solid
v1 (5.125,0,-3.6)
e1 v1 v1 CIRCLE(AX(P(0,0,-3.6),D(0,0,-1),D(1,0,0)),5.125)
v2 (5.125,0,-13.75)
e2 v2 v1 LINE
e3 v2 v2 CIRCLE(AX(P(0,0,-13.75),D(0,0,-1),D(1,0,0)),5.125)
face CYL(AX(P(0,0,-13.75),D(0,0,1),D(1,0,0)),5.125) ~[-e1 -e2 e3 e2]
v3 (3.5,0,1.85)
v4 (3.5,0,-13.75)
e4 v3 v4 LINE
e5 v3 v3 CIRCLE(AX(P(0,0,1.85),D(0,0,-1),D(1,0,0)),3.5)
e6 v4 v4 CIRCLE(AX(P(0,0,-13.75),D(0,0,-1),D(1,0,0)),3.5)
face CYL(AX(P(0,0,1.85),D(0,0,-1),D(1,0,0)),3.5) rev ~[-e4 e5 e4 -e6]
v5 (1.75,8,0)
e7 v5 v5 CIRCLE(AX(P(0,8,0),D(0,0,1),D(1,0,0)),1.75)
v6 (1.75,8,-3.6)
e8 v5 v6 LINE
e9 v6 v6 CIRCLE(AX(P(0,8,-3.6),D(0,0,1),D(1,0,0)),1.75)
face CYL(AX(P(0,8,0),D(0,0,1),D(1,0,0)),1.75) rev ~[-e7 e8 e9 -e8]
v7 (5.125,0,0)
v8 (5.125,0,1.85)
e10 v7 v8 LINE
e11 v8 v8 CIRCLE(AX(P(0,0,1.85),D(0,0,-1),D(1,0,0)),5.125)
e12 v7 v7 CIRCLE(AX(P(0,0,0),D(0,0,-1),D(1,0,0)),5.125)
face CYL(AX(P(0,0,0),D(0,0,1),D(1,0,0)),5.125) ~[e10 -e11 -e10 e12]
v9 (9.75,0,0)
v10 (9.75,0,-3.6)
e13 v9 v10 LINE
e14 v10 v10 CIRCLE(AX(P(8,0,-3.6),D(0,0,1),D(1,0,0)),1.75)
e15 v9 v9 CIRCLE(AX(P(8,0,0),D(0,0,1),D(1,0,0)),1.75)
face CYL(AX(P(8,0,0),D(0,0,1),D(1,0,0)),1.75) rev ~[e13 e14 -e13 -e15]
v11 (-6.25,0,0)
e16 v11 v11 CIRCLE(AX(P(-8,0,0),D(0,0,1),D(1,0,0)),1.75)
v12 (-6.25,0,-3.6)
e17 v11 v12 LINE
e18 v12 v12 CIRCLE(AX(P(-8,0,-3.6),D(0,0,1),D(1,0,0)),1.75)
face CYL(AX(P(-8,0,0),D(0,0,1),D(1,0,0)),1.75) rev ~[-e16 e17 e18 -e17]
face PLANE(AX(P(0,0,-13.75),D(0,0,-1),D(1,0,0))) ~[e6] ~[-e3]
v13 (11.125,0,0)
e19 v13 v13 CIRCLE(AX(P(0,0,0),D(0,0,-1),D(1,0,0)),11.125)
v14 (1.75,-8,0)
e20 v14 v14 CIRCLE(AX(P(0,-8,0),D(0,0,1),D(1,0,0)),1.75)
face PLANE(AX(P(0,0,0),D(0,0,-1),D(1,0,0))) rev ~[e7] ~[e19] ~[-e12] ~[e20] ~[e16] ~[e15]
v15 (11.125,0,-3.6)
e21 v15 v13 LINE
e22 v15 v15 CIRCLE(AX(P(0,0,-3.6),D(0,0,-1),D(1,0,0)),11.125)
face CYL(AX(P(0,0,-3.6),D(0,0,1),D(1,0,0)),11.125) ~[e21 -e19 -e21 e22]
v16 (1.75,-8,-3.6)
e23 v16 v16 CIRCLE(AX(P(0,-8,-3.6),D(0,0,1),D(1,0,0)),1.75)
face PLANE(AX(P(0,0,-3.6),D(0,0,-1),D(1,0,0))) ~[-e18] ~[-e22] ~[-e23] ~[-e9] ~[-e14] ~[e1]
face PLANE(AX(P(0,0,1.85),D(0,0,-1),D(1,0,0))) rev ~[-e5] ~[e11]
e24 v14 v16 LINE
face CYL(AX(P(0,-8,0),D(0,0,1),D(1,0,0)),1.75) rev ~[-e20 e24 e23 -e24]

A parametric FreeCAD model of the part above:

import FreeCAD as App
import Part
import Sketcher

V = App.Vector

doc = App.newDocument("Part")
body = doc.addObject("PartDesign::Body", "Body")

# Sketch on XZ plane
sketch1 = body.newObject("Sketcher::SketchObject", "Sketch")
sketch1.AttachmentSupport = (doc.getObject("XZ_Plane"), [""])
sketch1.MapMode = "FlatFace"
sketch1.addGeometry(Part.LineSegment(V(5.1, 1.9, 0), V(3.5, 1.9, 0)), False)
sketch1.addGeometry(Part.LineSegment(V(3.5, 1.9, 0), V(3.5, -13.8, 0)), False)
sketch1.addGeometry(Part.LineSegment(V(3.5, -13.8, 0), V(5.1, -13.8, 0)), False)
sketch1.addGeometry(Part.LineSegment(V(5.1, -13.8, 0), V(5.1, -3.6, 0)), False)
sketch1.addGeometry(Part.LineSegment(V(5.1, -3.6, 0), V(11.1, -3.6, 0)), False)
sketch1.addGeometry(Part.LineSegment(V(11.1, -3.6, 0), V(11.1, 0, 0)), False)
sketch1.addGeometry(Part.LineSegment(V(11.1, 0, 0), V(5.1, 0, 0)), False)
sketch1.addGeometry(Part.LineSegment(V(5.1, 0, 0), V(5.1, 1.9, 0)), False)
sketch1.addConstraint(Sketcher.Constraint("Coincident", 0, 2, 1, 1))
sketch1.addConstraint(Sketcher.Constraint("Coincident", 1, 2, 2, 1))
sketch1.addConstraint(Sketcher.Constraint("Coincident", 2, 2, 3, 1))
sketch1.addConstraint(Sketcher.Constraint("Coincident", 3, 2, 4, 1))
sketch1.addConstraint(Sketcher.Constraint("Coincident", 4, 2, 5, 1))
sketch1.addConstraint(Sketcher.Constraint("Coincident", 5, 2, 6, 1))
sketch1.addConstraint(Sketcher.Constraint("Coincident", 6, 2, 7, 1))
sketch1.addConstraint(Sketcher.Constraint("Coincident", 7, 2, 0, 1))
sketch1.addConstraint(Sketcher.Constraint("Horizontal", 0))
sketch1.addConstraint(Sketcher.Constraint("Vertical", 1))
sketch1.addConstraint(Sketcher.Constraint("Horizontal", 2))
sketch1.addConstraint(Sketcher.Constraint("Vertical", 3))
sketch1.addConstraint(Sketcher.Constraint("Horizontal", 4))
sketch1.addConstraint(Sketcher.Constraint("Vertical", 5))
sketch1.addConstraint(Sketcher.Constraint("Horizontal", 6))
sketch1.addConstraint(Sketcher.Constraint("Vertical", 7))
sketch1.addConstraint(Sketcher.Constraint("PointOnObject", 5, 2, -1))
sketch1.addConstraint(Sketcher.Constraint("Vertical", 3, 2, 6, 2))
sketch1.addConstraint(Sketcher.Constraint("DistanceX", 4, 1, 4, 2, 6.0))
sketch1.addConstraint(Sketcher.Constraint("DistanceY", 1, 2, 1, 1, 15.6))
sketch1.addConstraint(Sketcher.Constraint("DistanceY", 5, 1, 5, 2, 3.6))
sketch1.addConstraint(Sketcher.Constraint("DistanceY", 3, 1, 3, 2, 10.15))
sketch1.addConstraint(Sketcher.Constraint("DistanceX", -1, 1, 0, 2, 3.5))
sketch1.addConstraint(Sketcher.Constraint("DistanceX", 0, 2, 0, 1, 1.625))
revolution = body.newObject("PartDesign::Revolution", "Revolution")
revolution.Profile = sketch1
revolution.ReferenceAxis = (sketch1, ["V_Axis"])
revolution.Angle = 360

# Sketch on XY plane
sketch2 = body.newObject("Sketcher::SketchObject", "Sketch001")
sketch2.AttachmentSupport = (doc.getObject("XY_Plane"), [""])
sketch2.MapMode = "FlatFace"
sketch2.addGeometry(Part.Circle(V(0, 8, 0), V(0, 0, 1), 1.8), False)
sketch2.addGeometry(Part.Circle(V(-8, 0, 0), V(0, 0, 1), 1.8), False)
sketch2.addGeometry(Part.Circle(V(0, -8, 0), V(0, 0, 1), 1.8), False)
sketch2.addGeometry(Part.Circle(V(8, 0, 0), V(0, 0, 1), 1.8), False)
sketch2.addConstraint(Sketcher.Constraint("Equal", 0, 1))
sketch2.addConstraint(Sketcher.Constraint("Equal", 1, 2))
sketch2.addConstraint(Sketcher.Constraint("Equal", 2, 3))
sketch2.addConstraint(Sketcher.Constraint("Symmetric", 0, 3, 2, 3, -1, 1))
sketch2.addConstraint(Sketcher.Constraint("Symmetric", 1, 3, 3, 3, -1, 1))
sketch2.addConstraint(Sketcher.Constraint("PointOnObject", 0, 3, -2))
sketch2.addConstraint(Sketcher.Constraint("PointOnObject", 1, 3, -1))
sketch2.addConstraint(Sketcher.Constraint("Diameter", 0, 3.5))
sketch2.addConstraint(Sketcher.Constraint("DistanceY", -1, 1, 0, 3, 8.0))
sketch2.addConstraint(Sketcher.Constraint("DistanceX", 1, 3, -1, 1, 8.0))
pocket1 = body.newObject("PartDesign::Pocket", "Pocket")
pocket1.Profile = sketch2
pocket1.Length = 25

doc.recompute()
